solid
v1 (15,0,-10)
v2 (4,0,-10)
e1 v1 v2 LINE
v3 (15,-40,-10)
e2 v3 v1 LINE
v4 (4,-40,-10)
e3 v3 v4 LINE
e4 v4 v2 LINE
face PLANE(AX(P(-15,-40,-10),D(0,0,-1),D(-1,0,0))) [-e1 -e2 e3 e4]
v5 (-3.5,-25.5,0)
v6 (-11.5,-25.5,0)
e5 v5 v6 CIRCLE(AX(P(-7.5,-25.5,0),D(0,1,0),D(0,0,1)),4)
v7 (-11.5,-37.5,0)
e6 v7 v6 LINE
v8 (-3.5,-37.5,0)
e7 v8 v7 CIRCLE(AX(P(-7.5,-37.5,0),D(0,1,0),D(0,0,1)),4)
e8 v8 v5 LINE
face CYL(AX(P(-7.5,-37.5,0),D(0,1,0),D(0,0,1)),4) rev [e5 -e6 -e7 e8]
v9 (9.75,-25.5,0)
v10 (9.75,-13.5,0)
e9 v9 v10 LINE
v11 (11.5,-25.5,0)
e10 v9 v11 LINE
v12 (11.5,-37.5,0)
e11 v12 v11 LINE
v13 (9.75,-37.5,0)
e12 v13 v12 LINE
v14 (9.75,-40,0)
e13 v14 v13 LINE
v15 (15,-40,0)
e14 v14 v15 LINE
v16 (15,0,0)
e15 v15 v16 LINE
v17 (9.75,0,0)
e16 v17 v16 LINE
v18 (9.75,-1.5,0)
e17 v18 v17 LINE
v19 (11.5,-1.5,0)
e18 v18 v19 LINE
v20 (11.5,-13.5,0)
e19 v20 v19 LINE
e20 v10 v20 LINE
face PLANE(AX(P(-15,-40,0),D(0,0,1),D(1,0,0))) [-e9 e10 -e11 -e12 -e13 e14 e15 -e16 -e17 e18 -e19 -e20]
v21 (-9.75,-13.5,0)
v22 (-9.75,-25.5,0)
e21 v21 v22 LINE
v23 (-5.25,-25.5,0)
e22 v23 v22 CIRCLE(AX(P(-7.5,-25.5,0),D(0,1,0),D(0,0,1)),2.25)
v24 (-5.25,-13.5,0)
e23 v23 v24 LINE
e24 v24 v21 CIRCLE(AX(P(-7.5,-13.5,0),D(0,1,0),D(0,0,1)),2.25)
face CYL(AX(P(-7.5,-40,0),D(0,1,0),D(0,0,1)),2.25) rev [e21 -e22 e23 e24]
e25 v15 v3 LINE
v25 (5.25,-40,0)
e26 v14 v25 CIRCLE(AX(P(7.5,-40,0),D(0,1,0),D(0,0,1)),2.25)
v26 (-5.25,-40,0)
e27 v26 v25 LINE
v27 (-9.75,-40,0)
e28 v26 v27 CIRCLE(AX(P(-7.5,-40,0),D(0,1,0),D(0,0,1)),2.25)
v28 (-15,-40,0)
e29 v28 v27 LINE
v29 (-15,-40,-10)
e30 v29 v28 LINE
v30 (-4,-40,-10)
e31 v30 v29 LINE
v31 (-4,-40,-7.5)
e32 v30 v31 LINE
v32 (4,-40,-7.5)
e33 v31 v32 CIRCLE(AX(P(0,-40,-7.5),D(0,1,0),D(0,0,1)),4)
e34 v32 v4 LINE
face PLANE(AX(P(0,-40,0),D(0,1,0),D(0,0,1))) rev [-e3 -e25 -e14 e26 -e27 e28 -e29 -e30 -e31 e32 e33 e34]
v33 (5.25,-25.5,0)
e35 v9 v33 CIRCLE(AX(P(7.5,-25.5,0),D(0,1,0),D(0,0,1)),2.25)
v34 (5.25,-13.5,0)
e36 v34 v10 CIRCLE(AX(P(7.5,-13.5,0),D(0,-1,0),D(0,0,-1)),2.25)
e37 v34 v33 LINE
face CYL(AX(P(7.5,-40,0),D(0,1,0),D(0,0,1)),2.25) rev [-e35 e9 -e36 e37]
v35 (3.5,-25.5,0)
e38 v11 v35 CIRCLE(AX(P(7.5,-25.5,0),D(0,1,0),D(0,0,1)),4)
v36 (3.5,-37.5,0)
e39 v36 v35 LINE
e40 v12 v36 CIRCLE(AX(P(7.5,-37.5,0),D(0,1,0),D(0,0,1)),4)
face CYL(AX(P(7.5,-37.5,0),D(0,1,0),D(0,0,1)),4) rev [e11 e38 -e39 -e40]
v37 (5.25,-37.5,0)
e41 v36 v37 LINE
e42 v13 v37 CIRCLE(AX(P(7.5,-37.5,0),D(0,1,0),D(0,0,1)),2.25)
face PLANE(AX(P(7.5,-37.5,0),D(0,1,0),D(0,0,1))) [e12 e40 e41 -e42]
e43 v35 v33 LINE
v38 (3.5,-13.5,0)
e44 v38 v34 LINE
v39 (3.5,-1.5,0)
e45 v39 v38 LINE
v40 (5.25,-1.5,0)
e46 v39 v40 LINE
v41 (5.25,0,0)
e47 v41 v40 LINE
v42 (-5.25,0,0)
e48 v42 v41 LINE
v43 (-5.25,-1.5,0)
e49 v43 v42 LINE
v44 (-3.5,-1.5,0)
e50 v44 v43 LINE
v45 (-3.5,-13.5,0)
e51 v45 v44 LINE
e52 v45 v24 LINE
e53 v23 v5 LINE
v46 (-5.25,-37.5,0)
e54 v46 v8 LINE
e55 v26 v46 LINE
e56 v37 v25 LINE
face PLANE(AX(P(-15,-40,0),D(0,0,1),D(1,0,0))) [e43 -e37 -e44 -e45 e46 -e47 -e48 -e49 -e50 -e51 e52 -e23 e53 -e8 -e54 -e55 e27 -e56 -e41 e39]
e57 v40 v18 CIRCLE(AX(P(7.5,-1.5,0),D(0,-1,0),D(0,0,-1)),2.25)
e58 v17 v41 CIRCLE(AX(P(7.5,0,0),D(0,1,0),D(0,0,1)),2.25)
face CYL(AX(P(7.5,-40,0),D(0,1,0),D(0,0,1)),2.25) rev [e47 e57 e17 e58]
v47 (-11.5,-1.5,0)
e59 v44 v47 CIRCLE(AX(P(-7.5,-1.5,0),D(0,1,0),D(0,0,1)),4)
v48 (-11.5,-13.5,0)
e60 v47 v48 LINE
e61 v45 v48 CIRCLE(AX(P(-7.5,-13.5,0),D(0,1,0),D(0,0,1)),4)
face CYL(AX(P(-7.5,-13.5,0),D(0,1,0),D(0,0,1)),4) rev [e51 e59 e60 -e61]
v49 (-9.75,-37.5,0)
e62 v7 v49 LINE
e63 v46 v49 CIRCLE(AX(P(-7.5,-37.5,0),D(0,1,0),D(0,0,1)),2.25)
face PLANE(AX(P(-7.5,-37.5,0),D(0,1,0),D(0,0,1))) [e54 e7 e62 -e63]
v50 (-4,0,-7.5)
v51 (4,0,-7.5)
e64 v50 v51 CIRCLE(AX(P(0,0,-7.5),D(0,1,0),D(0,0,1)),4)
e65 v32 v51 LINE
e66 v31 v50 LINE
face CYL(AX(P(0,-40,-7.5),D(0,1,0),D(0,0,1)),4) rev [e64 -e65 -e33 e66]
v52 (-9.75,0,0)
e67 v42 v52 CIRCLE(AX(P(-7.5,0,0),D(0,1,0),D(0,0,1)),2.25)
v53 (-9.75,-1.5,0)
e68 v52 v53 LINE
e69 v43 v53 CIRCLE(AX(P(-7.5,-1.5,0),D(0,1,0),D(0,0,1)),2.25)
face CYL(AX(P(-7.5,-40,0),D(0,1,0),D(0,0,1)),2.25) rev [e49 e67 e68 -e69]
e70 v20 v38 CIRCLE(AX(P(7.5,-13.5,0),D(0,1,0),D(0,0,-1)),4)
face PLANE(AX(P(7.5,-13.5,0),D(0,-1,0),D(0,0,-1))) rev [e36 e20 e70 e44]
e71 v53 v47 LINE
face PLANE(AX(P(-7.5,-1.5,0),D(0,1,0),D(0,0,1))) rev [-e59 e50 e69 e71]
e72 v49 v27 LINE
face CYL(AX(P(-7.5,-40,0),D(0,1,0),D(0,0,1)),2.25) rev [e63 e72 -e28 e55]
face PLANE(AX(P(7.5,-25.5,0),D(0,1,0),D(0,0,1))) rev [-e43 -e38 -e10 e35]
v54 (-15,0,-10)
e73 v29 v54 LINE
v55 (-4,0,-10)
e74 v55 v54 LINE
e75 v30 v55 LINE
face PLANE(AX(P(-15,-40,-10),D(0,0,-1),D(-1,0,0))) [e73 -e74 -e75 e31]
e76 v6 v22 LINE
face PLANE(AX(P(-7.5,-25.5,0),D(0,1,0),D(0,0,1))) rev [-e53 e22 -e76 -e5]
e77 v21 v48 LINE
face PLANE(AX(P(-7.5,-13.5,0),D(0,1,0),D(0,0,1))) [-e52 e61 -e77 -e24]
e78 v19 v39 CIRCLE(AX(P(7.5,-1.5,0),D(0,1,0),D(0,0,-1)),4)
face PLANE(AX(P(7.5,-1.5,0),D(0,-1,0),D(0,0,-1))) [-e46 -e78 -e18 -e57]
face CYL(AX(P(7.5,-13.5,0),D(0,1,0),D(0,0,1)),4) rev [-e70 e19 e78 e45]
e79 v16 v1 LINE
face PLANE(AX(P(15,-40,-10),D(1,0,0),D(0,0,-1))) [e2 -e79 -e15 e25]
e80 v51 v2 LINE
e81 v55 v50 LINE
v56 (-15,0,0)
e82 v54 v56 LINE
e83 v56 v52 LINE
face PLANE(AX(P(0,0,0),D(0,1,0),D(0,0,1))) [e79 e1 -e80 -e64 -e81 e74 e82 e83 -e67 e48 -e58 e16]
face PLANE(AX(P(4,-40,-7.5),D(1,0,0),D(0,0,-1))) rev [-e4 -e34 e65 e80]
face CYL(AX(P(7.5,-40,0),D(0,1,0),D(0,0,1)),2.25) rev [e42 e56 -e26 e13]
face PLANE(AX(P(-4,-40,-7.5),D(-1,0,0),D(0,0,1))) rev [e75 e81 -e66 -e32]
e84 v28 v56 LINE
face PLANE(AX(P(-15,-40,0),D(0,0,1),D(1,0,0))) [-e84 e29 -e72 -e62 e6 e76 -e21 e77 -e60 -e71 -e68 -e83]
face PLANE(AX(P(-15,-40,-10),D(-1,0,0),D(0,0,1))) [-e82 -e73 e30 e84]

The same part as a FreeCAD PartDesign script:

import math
import FreeCAD as App
import Part
import Sketcher

V = App.Vector

doc = App.newDocument("Part")
body = doc.addObject("PartDesign::Body", "Body")

# Sketch on XZ plane
sketch1 = body.newObject("Sketcher::SketchObject", "Sketch")
sketch1.AttachmentSupport = (doc.getObject("XZ_Plane"), [""])
sketch1.MapMode = "FlatFace"
sketch1.addGeometry(Part.LineSegment(V(-15, -10, 0), V(-15, 0, 0)), False)
sketch1.addGeometry(Part.LineSegment(V(-15, 0, 0), V(15, 0, 0)), False)
sketch1.addGeometry(Part.LineSegment(V(15, 0, 0), V(15, -10, 0)), False)
sketch1.addGeometry(Part.LineSegment(V(15, -10, 0), V(-15, -10, 0)), False)
sketch1.addConstraint(Sketcher.Constraint("Coincident", 0, 2, 1, 1))
sketch1.addConstraint(Sketcher.Constraint("Coincident", 1, 2, 2, 1))
sketch1.addConstraint(Sketcher.Constraint("Coincident", 2, 2, 3, 1))
sketch1.addConstraint(Sketcher.Constraint("Coincident", 3, 2, 0, 1))
sketch1.addConstraint(Sketcher.Constraint("Vertical", 0))
sketch1.addConstraint(Sketcher.Constraint("Horizontal", 1))
sketch1.addConstraint(Sketcher.Constraint("Vertical", 2))
sketch1.addConstraint(Sketcher.Constraint("Horizontal", 3))
sketch1.addConstraint(Sketcher.Constraint("Symmetric", 0, 2, 1, 2, -1, 1))
sketch1.addConstraint(Sketcher.Constraint("DistanceX", 1, 1, 1, 2, 30.0))
sketch1.addConstraint(Sketcher.Constraint("DistanceY", 0, 1, 0, 2, 10.0))
pad1 = body.newObject("PartDesign::Pad", "Pad")
pad1.Profile = sketch1
pad1.Length = 40

# Sketch on XZ plane
sketch2 = body.newObject("Sketcher::SketchObject", "Sketch001")
sketch2.AttachmentSupport = (doc.getObject("XZ_Plane"), [""])
sketch2.MapMode = "FlatFace"
sketch2.AttachmentOffset = App.Placement(V(0, 0, 1.5), App.Rotation())
sketch2.addGeometry(Part.Circle(V(-7.5, 0, 0), V(0, 0, 1), 4), False)
sketch2.addGeometry(Part.Circle(V(7.5, 0, 0), V(0, 0, 1), 4), False)
sketch2.addConstraint(Sketcher.Constraint("Equal", 0, 1))
sketch2.addConstraint(Sketcher.Constraint("Symmetric", 0, 3, 1, 3, -1, 1))
sketch2.addConstraint(Sketcher.Constraint("PointOnObject", 0, 3, -1))
sketch2.addConstraint(Sketcher.Constraint("Diameter", 0, 8.0))
sketch2.addConstraint(Sketcher.Constraint("DistanceX", 0, 3, 1, 3, 15.0))
pocket1 = body.newObject("PartDesign::Pocket", "Pocket")
pocket1.Profile = sketch2
pocket1.Length = 12
pocket1.Reversed = True

# Sketch on XZ plane
sketch3 = body.newObject("Sketcher::SketchObject", "Sketch002")
sketch3.AttachmentSupport = (doc.getObject("XZ_Plane"), [""])
sketch3.MapMode = "FlatFace"
sketch3.AttachmentOffset = App.Placement(V(0, 0, 25.5), App.Rotation())
sketch3.addGeometry(Part.LineSegment(V(-11.5, 0, 0), V(-3.5, 0, 0)), False)
sketch3.addGeometry(Part.ArcOfCircle(Part.Circle(V(-7.5, 0, 0), V(0, 0, 1), 4), math.radians(180), math.radians(360)), False)
sketch3.addGeometry(Part.LineSegment(V(3.5, 0, 0), V(11.5, 0, 0)), False)
sketch3.addGeometry(Part.ArcOfCircle(Part.Circle(V(7.5, 0, 0), V(0, 0, 1), 4), math.radians(180), math.radians(360)), False)
sketch3.addConstraint(Sketcher.Constraint("Coincident", 0, 1, 1, 1))
sketch3.addConstraint(Sketcher.Constraint("Coincident", 1, 2, 0, 2))
sketch3.addConstraint(Sketcher.Constraint("Coincident", 2, 1, 3, 1))
sketch3.addConstraint(Sketcher.Constraint("Coincident", 3, 2, 2, 2))
sketch3.addConstraint(Sketcher.Constraint("Horizontal", 0))
sketch3.addConstraint(Sketcher.Constraint("Horizontal", 2))
sketch3.addConstraint(Sketcher.Constraint("Equal", 1, 3))
sketch3.addConstraint(Sketcher.Constraint("Symmetric", 1, 3, 3, 3, -1, 1))
sketch3.addConstraint(Sketcher.Constraint("PointOnObject", 1, 3, -1))
sketch3.addConstraint(Sketcher.Constraint("PointOnObject", 0, 1, -1))
sketch3.addConstraint(Sketcher.Constraint("PointOnObject", 2, 1, -1))
sketch3.addConstraint(Sketcher.Constraint("Radius", 1, 4.0))
sketch3.addConstraint(Sketcher.Constraint("DistanceX", 1, 3, 3, 3, 15.0))
pocket2 = body.newObject("PartDesign::Pocket", "Pocket001")
pocket2.Profile = sketch3
pocket2.Length = 12
pocket2.Reversed = True

# Sketch on XZ plane
sketch4 = body.newObject("Sketcher::SketchObject", "Sketch003")
sketch4.AttachmentSupport = (doc.getObject("XZ_Plane"), [""])
sketch4.MapMode = "FlatFace"
sketch4.AttachmentOffset = App.Placement(V(0, 0, 13.5), App.Rotation())
sketch4.addGeometry(Part.Circle(V(-7.5, 0, 0), V(0, 0, 1), 2.2), False)
sketch4.addGeometry(Part.Circle(V(7.5, 0, 0), V(0, 0, 1), 2.2), False)
sketch4.addConstraint(Sketcher.Constraint("Equal", 0, 1))
sketch4.addConstraint(Sketcher.Constraint("Symmetric", 0, 3, 1, 3, -1, 1))
sketch4.addConstraint(Sketcher.Constraint("PointOnObject", 0, 3, -1))
sketch4.addConstraint(Sketcher.Constraint("Diameter", 0, 4.5))
sketch4.addConstraint(Sketcher.Constraint("DistanceX", 0, 3, 1, 3, 15.0))
pocket3 = body.newObject("PartDesign::Pocket", "Pocket002")
pocket3.Profile = sketch4
pocket3.Type = "ThroughAll"
pocket3.Midplane = True

# Sketch on XZ plane
sketch5 = body.newObject("Sketcher::SketchObject", "Sketch004")
sketch5.AttachmentSupport = (doc.getObject("XZ_Plane"), [""])
sketch5.MapMode = "FlatFace"
sketch5.addGeometry(Part.LineSegment(V(-4, -10, 0), V(-4, -7.5, 0)), False)
sketch5.addGeometry(Part.ArcOfCircle(Part.Circle(V(0, -7.5, 0), V(0, 0, 1), 4), math.radians(0), math.radians(180)), False)
sketch5.addGeometry(Part.LineSegment(V(4, -7.5, 0), V(4, -10, 0)), False)
sketch5.addGeometry(Part.ArcOfCircle(Part.Circle(V(0, -10, 0), V(0, 0, 1), 4), math.radians(180), math.radians(360)), False)
sketch5.addConstraint(Sketcher.Constraint("Tangent", 0, 2, 1, 2))
sketch5.addConstraint(Sketcher.Constraint("Tangent", 1, 1, 2, 1))
sketch5.addConstraint(Sketcher.Constraint("Tangent", 2, 2, 3, 2))
sketch5.addConstraint(Sketcher.Constraint("Tangent", 3, 1, 0, 1))
sketch5.addConstraint(Sketcher.Constraint("Vertical", 0))
sketch5.addConstraint(Sketcher.Constraint("Vertical", 2))
sketch5.addConstraint(Sketcher.Constraint("PointOnObject", 1, 3, -2))
sketch5.addConstraint(Sketcher.Constraint("Radius", 1, 4.0))
sketch5.addConstraint(Sketcher.Constraint("DistanceY", 0, 1, 0, 2, 2.5))
sketch5.addConstraint(Sketcher.Constraint("DistanceY", 3, 3, -1, 1, 10.0))
pocket4 = body.newObject("PartDesign::Pocket", "Pocket003")
pocket4.Profile = sketch5
pocket4.Type = "ThroughAll"
pocket4.Reversed = True

doc.recompute()
